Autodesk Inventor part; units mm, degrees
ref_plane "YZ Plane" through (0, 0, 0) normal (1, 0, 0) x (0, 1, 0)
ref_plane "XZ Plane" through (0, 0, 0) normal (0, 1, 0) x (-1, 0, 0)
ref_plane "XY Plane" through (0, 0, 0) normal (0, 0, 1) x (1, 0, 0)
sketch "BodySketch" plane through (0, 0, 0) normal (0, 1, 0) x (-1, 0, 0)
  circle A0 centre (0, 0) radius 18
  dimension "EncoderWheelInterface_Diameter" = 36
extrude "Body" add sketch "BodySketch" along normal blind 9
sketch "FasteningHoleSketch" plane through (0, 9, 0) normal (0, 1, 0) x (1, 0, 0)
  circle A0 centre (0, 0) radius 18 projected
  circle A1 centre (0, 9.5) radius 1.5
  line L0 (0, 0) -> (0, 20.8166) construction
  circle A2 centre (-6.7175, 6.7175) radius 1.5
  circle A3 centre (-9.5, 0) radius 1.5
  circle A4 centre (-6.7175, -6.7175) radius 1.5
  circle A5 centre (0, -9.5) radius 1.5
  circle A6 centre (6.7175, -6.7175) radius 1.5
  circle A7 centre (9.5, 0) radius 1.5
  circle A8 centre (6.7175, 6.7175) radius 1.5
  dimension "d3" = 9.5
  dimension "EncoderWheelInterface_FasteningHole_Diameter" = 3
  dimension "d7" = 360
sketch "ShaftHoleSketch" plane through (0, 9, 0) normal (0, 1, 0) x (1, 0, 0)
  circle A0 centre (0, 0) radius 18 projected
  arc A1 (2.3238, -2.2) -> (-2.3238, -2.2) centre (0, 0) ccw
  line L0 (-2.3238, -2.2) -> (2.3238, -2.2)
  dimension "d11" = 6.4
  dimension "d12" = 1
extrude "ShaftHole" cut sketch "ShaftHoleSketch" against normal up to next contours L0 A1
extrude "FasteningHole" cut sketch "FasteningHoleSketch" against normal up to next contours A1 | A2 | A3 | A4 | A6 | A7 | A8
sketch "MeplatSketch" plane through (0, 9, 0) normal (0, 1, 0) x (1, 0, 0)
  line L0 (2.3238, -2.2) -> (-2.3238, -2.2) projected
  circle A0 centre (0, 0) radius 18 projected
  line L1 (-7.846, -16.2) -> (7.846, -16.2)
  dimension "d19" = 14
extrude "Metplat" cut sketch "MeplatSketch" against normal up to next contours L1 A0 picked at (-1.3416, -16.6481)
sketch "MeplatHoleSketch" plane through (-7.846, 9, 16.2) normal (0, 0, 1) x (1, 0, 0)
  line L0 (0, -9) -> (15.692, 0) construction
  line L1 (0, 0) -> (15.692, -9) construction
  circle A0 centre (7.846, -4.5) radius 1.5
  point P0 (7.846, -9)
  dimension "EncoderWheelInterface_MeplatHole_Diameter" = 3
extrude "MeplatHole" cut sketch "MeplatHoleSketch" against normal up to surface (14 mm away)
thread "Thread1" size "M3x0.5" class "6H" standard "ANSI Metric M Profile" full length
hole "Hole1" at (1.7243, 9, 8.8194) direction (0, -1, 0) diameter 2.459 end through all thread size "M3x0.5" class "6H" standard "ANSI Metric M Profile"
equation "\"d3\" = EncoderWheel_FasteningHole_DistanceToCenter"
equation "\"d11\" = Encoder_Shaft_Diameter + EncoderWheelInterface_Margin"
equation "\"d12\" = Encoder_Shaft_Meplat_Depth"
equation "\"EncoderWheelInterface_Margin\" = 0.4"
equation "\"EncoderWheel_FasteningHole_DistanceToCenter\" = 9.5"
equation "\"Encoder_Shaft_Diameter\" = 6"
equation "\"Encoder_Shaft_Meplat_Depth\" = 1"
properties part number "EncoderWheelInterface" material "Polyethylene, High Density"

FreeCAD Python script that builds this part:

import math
import FreeCAD as App
import Part
import Sketcher
Q = App.Units.Quantity

doc = App.newDocument("Part")
params = doc.addObject("Spreadsheet::Sheet", "Params")
for row, (alias, value) in enumerate([
    ("sketch1_diameter", "36 mm"),
    ("pad1_length", "9 mm"),
    ("sketch2_radius", "3.2 mm"),
    ("sketch3_diameter", "3 mm"),
    ("pocket2_length", "9 mm"),
    ("sketch4_radius", "18 mm"),
    ("sketch5_diameter", "3 mm"),
    ("pocket4_length", "14 mm"),
    ("hole_diameter", "2.459 mm"),
], start=1):
    params.set(f"A{row}", alias)
    params.set(f"B{row}", "=" + value)
    params.setAlias(f"B{row}", alias)

body = doc.addObject("PartDesign::Body", "Body")

# Sketch on XZ plane
sketch1 = doc.addObject("Sketcher::SketchObject", "Sketch")
body.addObject(sketch1)
sketch1.AttachmentSupport = (doc.XZ_Plane, [""])
sketch1.MapMode = "FlatFace"
sketch1.addGeometry(Part.Circle(App.Vector(0, 0, 0), App.Vector(0, 0, 1), 18), False)
sketch1.addConstraint(Sketcher.Constraint("Coincident", 0, 3, -1, 1))
sketch1.addConstraint(Sketcher.Constraint("Diameter", 0, Q("36 mm")))
sketch1.setExpression("Constraints[1]", "Params.sketch1_diameter")
pad1 = doc.addObject("PartDesign::Pad", "Pad")
body.addObject(pad1)
pad1.Profile = sketch1
pad1.setExpression("Length", "Params.pad1_length")
pad1.Reversed = True

# Sketch on XZ plane
sketch2 = doc.addObject("Sketcher::SketchObject", "Sketch001")
body.addObject(sketch2)
sketch2.AttachmentSupport = (doc.XZ_Plane, [""])
sketch2.MapMode = "FlatFace"
sketch2.AttachmentOffset = App.Placement(App.Vector(0, 0, -9), App.Rotation())
sketch2.addGeometry(Part.LineSegment(App.Vector(-2.3, 2.2, 0), App.Vector(2.3, 2.2, 0)), False)
sketch2.addGeometry(Part.ArcOfCircle(Part.Circle(App.Vector(0, 0, 0), App.Vector(0, 0, 1), 3.2), math.radians(137), math.radians(403)), False)
sketch2.addConstraint(Sketcher.Constraint("Coincident", 0, 1, 1, 1))
sketch2.addConstraint(Sketcher.Constraint("Coincident", 1, 2, 0, 2))
sketch2.addConstraint(Sketcher.Constraint("Horizontal", 0))
sketch2.addConstraint(Sketcher.Constraint("Coincident", 1, 3, -1, 1))
sketch2.addConstraint(Sketcher.Constraint("Radius", 1, Q("3.2 mm")))
sketch2.addConstraint(Sketcher.Constraint("DistanceY", -1, 1, 0, 1, Q("2.2 mm")))
sketch2.setExpression("Constraints[4]", "Params.sketch2_radius")
pocket1 = doc.addObject("PartDesign::Pocket", "Pocket")
body.addObject(pocket1)
pocket1.Profile = sketch2
pocket1.Type = "UpToFirst"
pocket1.Reversed = True

# Sketch on XZ plane
sketch3 = doc.addObject("Sketcher::SketchObject", "Sketch002")
body.addObject(sketch3)
sketch3.AttachmentSupport = (doc.XZ_Plane, [""])
sketch3.MapMode = "FlatFace"
sketch3.AttachmentOffset = App.Placement(App.Vector(0, 0, -9), App.Rotation())
sketch3.addGeometry(Part.Circle(App.Vector(0, -9.5, 0), App.Vector(0, 0, 1), 1.5), False)
sketch3.addGeometry(Part.Circle(App.Vector(-6.7, -6.7, 0), App.Vector(0, 0, 1), 1.5), False)
sketch3.addGeometry(Part.Circle(App.Vector(-9.5, 0, 0), App.Vector(0, 0, 1), 1.5), False)
sketch3.addGeometry(Part.Circle(App.Vector(-6.7, 6.7, 0), App.Vector(0, 0, 1), 1.5), False)
sketch3.addGeometry(Part.Circle(App.Vector(6.7, 6.7, 0), App.Vector(0, 0, 1), 1.5), False)
sketch3.addGeometry(Part.Circle(App.Vector(9.5, 0, 0), App.Vector(0, 0, 1), 1.5), False)
sketch3.addGeometry(Part.Circle(App.Vector(6.7, -6.7, 0), App.Vector(0, 0, 1), 1.5), False)
sketch3.addConstraint(Sketcher.Constraint("Equal", 0, 1))
sketch3.addConstraint(Sketcher.Constraint("Equal", 1, 2))
sketch3.addConstraint(Sketcher.Constraint("Equal", 2, 3))
sketch3.addConstraint(Sketcher.Constraint("Equal", 3, 4))
sketch3.addConstraint(Sketcher.Constraint("Equal", 4, 5))
sketch3.addConstraint(Sketcher.Constraint("Equal", 5, 6))
sketch3.addConstraint(Sketcher.Constraint("Symmetric", 1, 3, 4, 3, -1, 1))
sketch3.addConstraint(Sketcher.Constraint("Symmetric", 2, 3, 5, 3, -1, 1))
sketch3.addConstraint(Sketcher.Constraint("Symmetric", 3, 3, 6, 3, -1, 1))
sketch3.addConstraint(Sketcher.Constraint("Symmetric", 3, 3, 4, 3, -2))
sketch3.addConstraint(Sketcher.Constraint("PointOnObject", 0, 3, -2))
sketch3.addConstraint(Sketcher.Constraint("PointOnObject", 2, 3, -1))
sketch3.addConstraint(Sketcher.Constraint("Diameter", 0, Q("3 mm")))
sketch3.addConstraint(Sketcher.Constraint("DistanceY", 0, 3, -1, 1, Q("9.5 mm")))
sketch3.addConstraint(Sketcher.Constraint("DistanceX", 2, 3, -1, 1, Q("9.5 mm")))
sketch3.addConstraint(Sketcher.Constraint("DistanceY", 1, 3, 3, 3, Q("13.435 mm")))
sketch3.addConstraint(Sketcher.Constraint("DistanceX", 3, 3, 4, 3, Q("13.435 mm")))
sketch3.setExpression("Constraints[12]", "Params.sketch3_diameter")
pocket2 = doc.addObject("PartDesign::Pocket", "Pocket001")
body.addObject(pocket2)
pocket2.Profile = sketch3
pocket2.setExpression("Length", "Params.pocket2_length")
pocket2.Reversed = True

# Sketch on XZ plane
sketch4 = doc.addObject("Sketcher::SketchObject", "Sketch003")
body.addObject(sketch4)
sketch4.AttachmentSupport = (doc.XZ_Plane, [""])
sketch4.MapMode = "FlatFace"
sketch4.AttachmentOffset = App.Placement(App.Vector(0, 0, -9), App.Rotation())
sketch4.addGeometry(Part.LineSegment(App.Vector(8, 16, 0), App.Vector(-8, 16, 0)), False)
sketch4.addGeometry(Part.ArcOfCircle(Part.Circle(App.Vector(0, 0, 0), App.Vector(0, 0, 1), 18), math.radians(64), math.radians(116)), False)
sketch4.addConstraint(Sketcher.Constraint("Coincident", 0, 1, 1, 1))
sketch4.addConstraint(Sketcher.Constraint("Coincident", 1, 2, 0, 2))
sketch4.addConstraint(Sketcher.Constraint("Horizontal", 0))
sketch4.addConstraint(Sketcher.Constraint("Coincident", 1, 3, -1, 1))
sketch4.addConstraint(Sketcher.Constraint("Radius", 1, Q("18 mm")))
sketch4.addConstraint(Sketcher.Constraint("DistanceY", -1, 1, 0, 1, Q("16.2 mm")))
sketch4.setExpression("Constraints[4]", "Params.sketch4_radius")
pocket3 = doc.addObject("PartDesign::Pocket", "Pocket002")
body.addObject(pocket3)
pocket3.Profile = sketch4
pocket3.Type = "UpToFirst"
pocket3.Reversed = True

# Sketch on XY plane
sketch5 = doc.addObject("Sketcher::SketchObject", "Sketch004")
body.addObject(sketch5)
sketch5.AttachmentSupport = (doc.XY_Plane, [""])
sketch5.MapMode = "FlatFace"
sketch5.AttachmentOffset = App.Placement(App.Vector(0, 0, 16.2), App.Rotation())
sketch5.addGeometry(Part.Circle(App.Vector(0, 4.5, 0), App.Vector(0, 0, 1), 1.5), False)
sketch5.addConstraint(Sketcher.Constraint("PointOnObject", 0, 3, -2))
sketch5.addConstraint(Sketcher.Constraint("Diameter", 0, Q("3 mm")))
sketch5.addConstraint(Sketcher.Constraint("DistanceY", -1, 1, 0, 3, Q("4.5 mm")))
sketch5.setExpression("Constraints[1]", "Params.sketch5_diameter")
pocket4 = doc.addObject("PartDesign::Pocket", "Pocket003")
body.addObject(pocket4)
pocket4.Profile = sketch5
pocket4.setExpression("Length", "Params.pocket4_length")

# Sketch on XZ plane
sketch6 = doc.addObject("Sketcher::SketchObject", "Sketch005")
body.addObject(sketch6)
sketch6.AttachmentSupport = (doc.XZ_Plane, [""])
sketch6.MapMode = "FlatFace"
sketch6.AttachmentOffset = App.Placement(App.Vector(0, 0, -9), App.Rotation())
sketch6.addGeometry(Part.Circle(App.Vector(1.7, 8.8, 0), App.Vector(0, 0, 1), 1.2), False)
sketch6.addConstraint(Sketcher.Constraint("Diameter", 0, Q("2.459 mm")))
sketch6.addConstraint(Sketcher.Constraint("DistanceX", -1, 1, 0, 3, Q("1.7243 mm")))
sketch6.addConstraint(Sketcher.Constraint("DistanceY", -1, 1, 0, 3, Q("8.8194 mm")))
doc.recompute()
hole = doc.addObject("PartDesign::Hole", "Hole")
body.addObject(hole)
hole.Profile = sketch6
hole.ThreadType = "None"
hole.setExpression("Diameter", "Params.hole_diameter")
hole.DepthType = "ThroughAll"
hole.Reversed = True

doc.recompute()
